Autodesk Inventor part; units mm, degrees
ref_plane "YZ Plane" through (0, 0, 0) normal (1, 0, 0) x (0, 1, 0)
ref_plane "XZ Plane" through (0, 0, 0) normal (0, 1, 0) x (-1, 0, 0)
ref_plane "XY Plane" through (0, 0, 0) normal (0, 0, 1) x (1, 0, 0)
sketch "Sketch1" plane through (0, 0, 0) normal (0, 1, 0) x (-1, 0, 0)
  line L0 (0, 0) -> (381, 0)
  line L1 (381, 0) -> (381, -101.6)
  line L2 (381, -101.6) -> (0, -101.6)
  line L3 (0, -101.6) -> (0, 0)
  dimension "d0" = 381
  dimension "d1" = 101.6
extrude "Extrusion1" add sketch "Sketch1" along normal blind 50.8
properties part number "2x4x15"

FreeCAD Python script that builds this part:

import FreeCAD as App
import Part
import Sketcher
from FreeCAD import Vector
Q = App.Units.Quantity

doc = App.newDocument("Part")
body = doc.addObject("PartDesign::Body", "Body")

# Sketch on XZ plane
sketch1 = body.newObject("Sketcher::SketchObject", "Sketch")
sketch1.AttachmentSupport = (doc.getObject("XZ_Plane"), [""])
sketch1.MapMode = "FlatFace"
sketch1.addGeometry(Part.LineSegment(Vector(-381, 0, 0), Vector(0, 0, 0)), False)
sketch1.addGeometry(Part.LineSegment(Vector(0, 0, 0), Vector(0, -102, 0)), False)
sketch1.addGeometry(Part.LineSegment(Vector(0, -102, 0), Vector(-381, -102, 0)), False)
sketch1.addGeometry(Part.LineSegment(Vector(-381, -102, 0), Vector(-381, 0, 0)), False)
sketch1.addConstraint(Sketcher.Constraint("Coincident", 0, 2, 1, 1))
sketch1.addConstraint(Sketcher.Constraint("Coincident", 1, 2, 2, 1))
sketch1.addConstraint(Sketcher.Constraint("Coincident", 2, 2, 3, 1))
sketch1.addConstraint(Sketcher.Constraint("Coincident", 3, 2, 0, 1))
sketch1.addConstraint(Sketcher.Constraint("Horizontal", 0))
sketch1.addConstraint(Sketcher.Constraint("Vertical", 1))
sketch1.addConstraint(Sketcher.Constraint("Horizontal", 2))
sketch1.addConstraint(Sketcher.Constraint("Vertical", 3))
sketch1.addConstraint(Sketcher.Constraint("Coincident", 0, 2, -1, 1))
sketch1.addConstraint(Sketcher.Constraint("DistanceX", 0, 1, 0, 2, Q("15 in")))
sketch1.addConstraint(Sketcher.Constraint("DistanceY", 1, 2, 1, 1, Q("4 in")))
pad1 = body.newObject("PartDesign::Pad", "Pad")
pad1.Profile = sketch1
pad1.Length = Q("2 in")
pad1.Reversed = True

doc.recompute()
